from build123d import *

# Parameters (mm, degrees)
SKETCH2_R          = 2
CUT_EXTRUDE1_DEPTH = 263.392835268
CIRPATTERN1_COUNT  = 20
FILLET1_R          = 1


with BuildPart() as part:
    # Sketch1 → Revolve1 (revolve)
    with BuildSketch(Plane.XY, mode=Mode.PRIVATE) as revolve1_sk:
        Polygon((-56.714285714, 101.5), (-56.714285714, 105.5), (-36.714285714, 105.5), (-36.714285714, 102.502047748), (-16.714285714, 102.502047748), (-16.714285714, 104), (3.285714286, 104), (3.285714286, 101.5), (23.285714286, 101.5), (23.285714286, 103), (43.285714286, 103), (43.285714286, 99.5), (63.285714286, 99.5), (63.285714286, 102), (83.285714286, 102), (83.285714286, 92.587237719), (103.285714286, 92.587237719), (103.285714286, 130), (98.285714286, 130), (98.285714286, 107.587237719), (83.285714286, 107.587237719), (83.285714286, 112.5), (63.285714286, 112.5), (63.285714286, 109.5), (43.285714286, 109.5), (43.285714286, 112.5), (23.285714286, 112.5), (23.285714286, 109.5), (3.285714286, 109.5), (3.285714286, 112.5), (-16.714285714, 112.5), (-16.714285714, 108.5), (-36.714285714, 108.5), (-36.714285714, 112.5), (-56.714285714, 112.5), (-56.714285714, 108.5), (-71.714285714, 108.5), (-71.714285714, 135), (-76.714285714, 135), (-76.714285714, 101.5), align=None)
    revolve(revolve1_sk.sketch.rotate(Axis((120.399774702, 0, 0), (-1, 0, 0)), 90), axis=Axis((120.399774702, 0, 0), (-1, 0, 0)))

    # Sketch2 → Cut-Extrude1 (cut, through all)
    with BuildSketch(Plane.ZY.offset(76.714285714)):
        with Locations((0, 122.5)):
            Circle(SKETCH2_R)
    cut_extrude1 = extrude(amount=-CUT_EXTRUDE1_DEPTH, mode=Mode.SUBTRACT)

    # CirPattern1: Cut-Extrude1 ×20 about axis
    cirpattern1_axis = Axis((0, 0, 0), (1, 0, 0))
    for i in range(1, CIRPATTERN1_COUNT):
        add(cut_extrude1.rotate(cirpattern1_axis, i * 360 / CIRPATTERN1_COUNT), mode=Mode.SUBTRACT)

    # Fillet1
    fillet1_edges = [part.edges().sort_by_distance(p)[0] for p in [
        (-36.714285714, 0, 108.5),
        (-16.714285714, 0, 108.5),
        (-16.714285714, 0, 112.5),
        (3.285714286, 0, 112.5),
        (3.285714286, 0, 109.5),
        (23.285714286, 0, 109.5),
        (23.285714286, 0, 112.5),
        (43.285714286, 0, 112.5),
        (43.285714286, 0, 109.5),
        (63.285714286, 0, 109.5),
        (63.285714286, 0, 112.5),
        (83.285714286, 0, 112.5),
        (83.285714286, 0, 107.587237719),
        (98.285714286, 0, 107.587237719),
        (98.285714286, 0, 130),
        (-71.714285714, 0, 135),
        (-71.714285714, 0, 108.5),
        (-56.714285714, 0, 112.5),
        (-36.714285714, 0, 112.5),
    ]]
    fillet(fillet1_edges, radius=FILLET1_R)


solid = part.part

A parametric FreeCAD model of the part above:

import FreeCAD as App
import Part
import Sketcher

V = App.Vector


def edges_at(feature, points):
    """Names of the edges that pass closest to the given points."""
    edges = feature.Shape.Edges
    near = lambda p: min(range(len(edges)), key=lambda i: edges[i].distToShape(Part.Vertex(*p))[0])
    return sorted({f"Edge{near(p) + 1}" for p in points})


def add_polygon(sketch, points):
    """Adds a closed chain of lines whose ends are joined by coincident constraints."""
    first, n = sketch.GeometryCount, len(points)
    for a, b in zip(points, points[1:] + points[:1]):
        sketch.addGeometry(Part.LineSegment(App.Vector(*a, 0), App.Vector(*b, 0)), False)
    for i in range(n):
        sketch.addConstraint(Sketcher.Constraint("Coincident", first + i, 2, first + (i + 1) % n, 1))

doc = App.newDocument("Part")
body = doc.addObject("PartDesign::Body", "Body")

# Sketch on XY plane
sketch1 = doc.addObject("Sketcher::SketchObject", "Sketch")
body.addObject(sketch1)
sketch1.AttachmentSupport = (doc.XY_Plane, [""])
sketch1.MapMode = "FlatFace"
add_polygon(sketch1, [(-56.714286, 101.5), (-56.714286, 105.5), (-36.714286, 105.5), (-36.714286, 102.502048), (-16.714286, 102.502048), (-16.714286, 104), (3.285714, 104), (3.285714, 101.5), (23.285714, 101.5), (23.285714, 103), (43.285714, 103), (43.285714, 99.5), (63.285714, 99.5), (63.285714, 102), (83.285714, 102), (83.285714, 92.587238), (103.285714, 92.587238), (103.285714, 130), (98.285714, 130), (98.285714, 107.587238), (83.285714, 107.587238), (83.285714, 112.5), (63.285714, 112.5), (63.285714, 109.5), (43.285714, 109.5), (43.285714, 112.5), (23.285714, 112.5), (23.285714, 109.5), (3.285714, 109.5), (3.285714, 112.5), (-16.714286, 112.5), (-16.714286, 108.5), (-36.714286, 108.5), (-36.714286, 112.5), (-56.714286, 112.5), (-56.714286, 108.5), (-71.714286, 108.5), (-71.714286, 135), (-76.714286, 135), (-76.714286, 101.5)])  # lines 0-39
sketch1.addConstraint([
    Sketcher.Constraint("Vertical", 0),
    Sketcher.Constraint("Horizontal", 1),
    Sketcher.Constraint("Vertical", 2),
    Sketcher.Constraint("Horizontal", 3),
    Sketcher.Constraint("Vertical", 4),
    Sketcher.Constraint("Horizontal", 5),
    Sketcher.Constraint("Vertical", 6),
    Sketcher.Constraint("Horizontal", 7),
    Sketcher.Constraint("Vertical", 8),
    Sketcher.Constraint("Horizontal", 9),
    Sketcher.Constraint("Vertical", 10),
    Sketcher.Constraint("Horizontal", 11),
    Sketcher.Constraint("Vertical", 12),
    Sketcher.Constraint("Horizontal", 13),
    Sketcher.Constraint("Vertical", 14),
    Sketcher.Constraint("Horizontal", 15),
    Sketcher.Constraint("Vertical", 16),
    Sketcher.Constraint("Horizontal", 17),
    Sketcher.Constraint("Vertical", 18),
    Sketcher.Constraint("Horizontal", 19),
    Sketcher.Constraint("Vertical", 20),
    Sketcher.Constraint("Horizontal", 21),
    Sketcher.Constraint("Vertical", 22),
    Sketcher.Constraint("Horizontal", 23),
    Sketcher.Constraint("Vertical", 24),
    Sketcher.Constraint("Horizontal", 25),
    Sketcher.Constraint("Vertical", 26),
    Sketcher.Constraint("Horizontal", 27),
    Sketcher.Constraint("Vertical", 28),
    Sketcher.Constraint("Horizontal", 29),
    Sketcher.Constraint("Vertical", 30),
    Sketcher.Constraint("Horizontal", 31),
    Sketcher.Constraint("Vertical", 32),
    Sketcher.Constraint("Horizontal", 33),
    Sketcher.Constraint("Vertical", 34),
    Sketcher.Constraint("Horizontal", 35),
    Sketcher.Constraint("Vertical", 36),
    Sketcher.Constraint("Horizontal", 37),
    Sketcher.Constraint("Vertical", 38),
    Sketcher.Constraint("Horizontal", 39),
    Sketcher.Constraint("Horizontal", 21, 2, 24, 2),
    Sketcher.Constraint("Horizontal", 23, 2, 26, 2),
    Sketcher.Constraint("Horizontal", 25, 2, 28, 2),
    Sketcher.Constraint("Horizontal", 29, 2, 32, 2),
    Sketcher.Constraint("Horizontal", 31, 2, 34, 2),
    Sketcher.Constraint("Horizontal", 7, 2, 38, 2),
    Sketcher.Constraint("Vertical", 14, 2, 19, 2),
    Sketcher.Constraint("Vertical", 12, 2, 21, 2),
    Sketcher.Constraint("Vertical", 10, 2, 23, 2),
    Sketcher.Constraint("Vertical", 8, 2, 25, 2),
    Sketcher.Constraint("Vertical", 6, 2, 27, 2),
    Sketcher.Constraint("Vertical", 4, 2, 29, 2),
    Sketcher.Constraint("Vertical", 2, 2, 31, 2),
    Sketcher.Constraint("Vertical", 0, 2, 33, 2),
    Sketcher.Constraint("Equal", 1, 3),
    Sketcher.Constraint("Equal", 3, 5),
    Sketcher.Constraint("Equal", 5, 7),
    Sketcher.Constraint("Equal", 7, 9),
    Sketcher.Constraint("Equal", 9, 11),
    Sketcher.Constraint("Equal", 11, 13),
    Sketcher.Constraint("Equal", 13, 15),
    Sketcher.Constraint("Equal", 19, 35),
    Sketcher.Constraint("Equal", 17, 37),
    Sketcher.Constraint("Equal", 6, 12),
    Sketcher.Constraint("Equal", 0, 30),
    Sketcher.Constraint("DistanceX", 1, 1, 1, 2, 20.0),
    Sketcher.Constraint("DistanceX", 17, 2, 17, 1, 5.0),
    Sketcher.Constraint("DistanceY", 0, 1, 0, 2, 4.0),
    Sketcher.Constraint("DistanceY", 22, 2, 22, 1, 3.0),
    Sketcher.Constraint("DistanceY", 6, 2, 6, 1, 2.5),
    Sketcher.Constraint("DistanceY", 8, 1, 8, 2, 1.5),
    Sketcher.Constraint("DistanceY", 10, 2, 10, 1, 3.5),
    Sketcher.Constraint("DistanceY", 36, 1, 36, 2, 26.5),
    Sketcher.Constraint("DistanceY", 38, 2, 38, 1, 33.5),
    Sketcher.Constraint("DistanceY", -1, 1, 4, 2, 104.0),
    Sketcher.Constraint("DistanceY", -1, 1, 16, 2, 130.0),
    Sketcher.Constraint("DistanceY", 15, 2, 18, 2, 15.0),
    Sketcher.Constraint("DistanceY", 2, 2, 2, 1, 2.997952),
    Sketcher.Constraint("DistanceY", 14, 2, 14, 1, 9.412762),
    Sketcher.Constraint("DistanceX", 0, 2, -1, 1, 56.714286),
])
revolution = doc.addObject("PartDesign::Revolution", "Revolution")
body.addObject(revolution)
revolution.Profile = sketch1
revolution.ReferenceAxis = (sketch1, ["H_Axis"])
revolution.Angle = 360

# Sketch on YZ plane
sketch2 = doc.addObject("Sketcher::SketchObject", "Sketch001")
body.addObject(sketch2)
sketch2.AttachmentSupport = (doc.YZ_Plane, [""])
sketch2.MapMode = "FlatFace"
sketch2.AttachmentOffset = App.Placement(V(0, 0, -76.714286), App.Rotation())
sketch2.addGeometry(Part.Circle(V(122.5, 0, 0), V(0, 0, 1), 2), False)
sketch2.addConstraint([
    Sketcher.Constraint("PointOnObject", 0, 3, -1),
    Sketcher.Constraint("Diameter", 0, 4.0),
    Sketcher.Constraint("DistanceX", -1, 1, 0, 3, 122.5),
])
pocket1 = doc.addObject("PartDesign::Pocket", "Pocket")
body.addObject(pocket1)
pocket1.Profile = sketch2
pocket1.Type = "ThroughAll"
pocket1.Reversed = True
doc.recompute()

polarpattern = doc.addObject("PartDesign::PolarPattern", "PolarPattern")
body.addObject(polarpattern)
polarpattern.Originals = [pocket1]
polarpattern.Axis = (doc.X_Axis, [""])
polarpattern.Angle = 360
polarpattern.Occurrences = 20
body.Tip = polarpattern
doc.recompute()

fillet = doc.addObject("PartDesign::Fillet", "Fillet")
body.addObject(fillet)
fillet.Base = (polarpattern, edges_at(polarpattern, [
    (-36.714, 0, 108.5),
    (-16.714, 0, 108.5),
    (-16.714, 0, 112.5),
    (3.286, 0, 112.5),
    (3.286, 0, 109.5),
    (23.286, 0, 109.5),
    (23.286, 0, 112.5),
    (43.286, 0, 112.5),
    (43.286, 0, 109.5),
    (63.286, 0, 109.5),
    (63.286, 0, 112.5),
    (83.286, 0, 112.5),
    (83.286, 0, 107.587),
    (98.286, 0, 107.587),
    (98.286, 0, 130),
    (-71.714, 0, 135),
    (-71.714, 0, 108.5),
    (-56.714, 0, 112.5),
    (-36.714, 0, 112.5),
]))
fillet.Radius = 1

doc.recompute()
